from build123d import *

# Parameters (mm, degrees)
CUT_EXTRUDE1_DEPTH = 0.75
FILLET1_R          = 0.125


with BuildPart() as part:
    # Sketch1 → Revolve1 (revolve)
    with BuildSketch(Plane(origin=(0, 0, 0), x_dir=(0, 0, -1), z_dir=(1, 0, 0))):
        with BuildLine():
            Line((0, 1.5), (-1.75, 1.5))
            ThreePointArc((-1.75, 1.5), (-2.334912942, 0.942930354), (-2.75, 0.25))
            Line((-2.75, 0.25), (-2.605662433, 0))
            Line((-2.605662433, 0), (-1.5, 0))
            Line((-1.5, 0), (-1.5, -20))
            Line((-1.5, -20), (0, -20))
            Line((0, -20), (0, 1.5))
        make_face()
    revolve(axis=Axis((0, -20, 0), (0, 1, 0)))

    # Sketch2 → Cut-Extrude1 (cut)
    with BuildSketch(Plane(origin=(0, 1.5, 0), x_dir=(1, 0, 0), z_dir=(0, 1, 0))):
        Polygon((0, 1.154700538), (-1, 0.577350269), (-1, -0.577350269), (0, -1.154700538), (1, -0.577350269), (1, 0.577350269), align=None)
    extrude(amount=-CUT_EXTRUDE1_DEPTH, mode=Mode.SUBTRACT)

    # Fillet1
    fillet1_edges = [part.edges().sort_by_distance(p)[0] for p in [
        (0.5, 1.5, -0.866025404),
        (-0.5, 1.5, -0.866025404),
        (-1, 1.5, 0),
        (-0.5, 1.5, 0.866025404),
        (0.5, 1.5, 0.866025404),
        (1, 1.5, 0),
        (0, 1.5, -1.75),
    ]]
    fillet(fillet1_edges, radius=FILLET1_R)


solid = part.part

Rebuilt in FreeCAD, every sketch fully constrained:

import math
import FreeCAD as App
import Part
import Sketcher

V = App.Vector
Q = App.Units.Quantity


def edges_at(feature, points):
    """Names of the edges that pass closest to the given points."""
    edges = feature.Shape.Edges
    near = lambda p: min(range(len(edges)), key=lambda i: edges[i].distToShape(Part.Vertex(*p))[0])
    return sorted({f"Edge{near(p) + 1}" for p in points})

doc = App.newDocument("Part")
params = doc.addObject("Spreadsheet::Sheet", "Params")
for row, (alias, value) in enumerate([
    ("sketch1_radius", "3 mm"),
    ("sketch1_width", "20 mm"),
    ("sketch1_width2", "21.5 mm"),
    ("sketch1_height", "1.5 mm"),
    ("sketch1_height2", "1.75 mm"),
    ("revolution_angle", "360 deg"),
    ("pocket1_length", "0.75 mm"),
    ("fillet_radius", "0.125 mm"),
], start=1):
    params.set(f"A{row}", alias)
    params.set(f"B{row}", "=" + value)
    params.setAlias(f"B{row}", alias)

body = doc.addObject("PartDesign::Body", "Body")

# Sketch on YZ plane
sketch1 = body.newObject("Sketcher::SketchObject", "Sketch")
sketch1.AttachmentSupport = (doc.getObject("YZ_Plane"), [""])
sketch1.MapMode = "FlatFace"
sketch1.addGeometry([
    Part.LineSegment(V(1.5, 0, 0), V(1.5, 1.75, 0)),  # 0
    Part.ArcOfCircle(Part.Circle(V(-0.93, -0.01, 0), V(0, 0, 1), 3), math.radians(36), math.radians(67)),  # 1
    Part.LineSegment(V(0.25, 2.75, 0), V(0, 2.61, 0)),  # 2
    Part.LineSegment(V(0, 2.61, 0), V(0, 1.5, 0)),  # 3
    Part.LineSegment(V(0, 1.5, 0), V(-20, 1.5, 0)),  # 4
    Part.LineSegment(V(-20, 1.5, 0), V(-20, 0, 0)),  # 5
    Part.LineSegment(V(-20, 0, 0), V(1.5, 0, 0)),  # 6
], False)
sketch1.addConstraint([
    Sketcher.Constraint("Coincident", 0, 2, 1, 1),
    Sketcher.Constraint("Coincident", 1, 2, 2, 1),
    Sketcher.Constraint("Coincident", 2, 2, 3, 1),
    Sketcher.Constraint("Coincident", 3, 2, 4, 1),
    Sketcher.Constraint("Coincident", 4, 2, 5, 1),
    Sketcher.Constraint("Coincident", 5, 2, 6, 1),
    Sketcher.Constraint("Coincident", 6, 2, 0, 1),
    Sketcher.Constraint("Vertical", 0),
    Sketcher.Constraint("Vertical", 3),
    Sketcher.Constraint("Horizontal", 4),
    Sketcher.Constraint("Vertical", 5),
    Sketcher.Constraint("Horizontal", 6),
    Sketcher.Constraint("PointOnObject", 2, 2, -2),
    Sketcher.Constraint("PointOnObject", 5, 2, -1),
    Sketcher.Constraint("Radius", 1, Q("3 mm")),
    Sketcher.Constraint("DistanceX", 4, 2, 4, 1, Q("20 mm")),
    Sketcher.Constraint("Angle", 2, Q("-150 deg")),
    Sketcher.Constraint("DistanceX", 6, 1, 6, 2, Q("21.5 mm")),
    Sketcher.Constraint("DistanceY", 5, 2, 5, 1, Q("1.5 mm")),
    Sketcher.Constraint("DistanceY", 0, 2, 1, 2, Q("1 mm")),
    Sketcher.Constraint("DistanceY", 0, 1, 0, 2, Q("1.75 mm")),
    Sketcher.Constraint("DistanceX", -1, 1, 1, 2, Q("0.25 mm")),
])
sketch1.setExpression("Constraints[14]", "Params.sketch1_radius")
sketch1.setExpression("Constraints[15]", "Params.sketch1_width")
sketch1.setExpression("Constraints[17]", "Params.sketch1_width2")
sketch1.setExpression("Constraints[18]", "Params.sketch1_height")
sketch1.setExpression("Constraints[20]", "Params.sketch1_height2")
revolution = body.newObject("PartDesign::Revolution", "Revolution")
revolution.Profile = sketch1
revolution.ReferenceAxis = (sketch1, ["H_Axis"])
revolution.setExpression("Angle", "Params.revolution_angle")

# Sketch on XZ plane
sketch2 = body.newObject("Sketcher::SketchObject", "Sketch001")
sketch2.AttachmentSupport = (doc.getObject("XZ_Plane"), [""])
sketch2.MapMode = "FlatFace"
sketch2.AttachmentOffset = App.Placement(V(0, 0, -1.5), App.Rotation())
sketch2.addGeometry([
    Part.LineSegment(V(0, -1.2, 0), V(-1, -0.6, 0)),  # 0
    Part.LineSegment(V(-1, -0.6, 0), V(-1, 0.6, 0)),  # 1
    Part.LineSegment(V(-1, 0.6, 0), V(0, 1.2, 0)),  # 2
    Part.LineSegment(V(0, 1.2, 0), V(1, 0.6, 0)),  # 3
    Part.LineSegment(V(1, 0.6, 0), V(1, -0.6, 0)),  # 4
    Part.LineSegment(V(1, -0.6, 0), V(0, -1.2, 0)),  # 5
], False)
sketch2.addConstraint([
    Sketcher.Constraint("Coincident", 0, 2, 1, 1),
    Sketcher.Constraint("Coincident", 1, 2, 2, 1),
    Sketcher.Constraint("Coincident", 2, 2, 3, 1),
    Sketcher.Constraint("Coincident", 3, 2, 4, 1),
    Sketcher.Constraint("Coincident", 4, 2, 5, 1),
    Sketcher.Constraint("Coincident", 5, 2, 0, 1),
    Sketcher.Constraint("Vertical", 1),
    Sketcher.Constraint("Vertical", 4),
    Sketcher.Constraint("Symmetric", 0, 2, 3, 2, -1, 1),
    Sketcher.Constraint("Symmetric", 2, 2, 5, 2, -1, 1),
    Sketcher.Constraint("PointOnObject", 2, 2, -2),
    Sketcher.Constraint("Parallel", 2, 5),
    Sketcher.Constraint("Horizontal", 1, 2, 3, 2),
    Sketcher.Constraint("Angle", 0, Q("150 deg")),
    Sketcher.Constraint("DistanceX", 0, 2, -1, 1, Q("1 mm")),
    Sketcher.Constraint("DistanceY", 1, 1, 1, 2, Q("1.154701 mm")),
])
pocket1 = body.newObject("PartDesign::Pocket", "Pocket")
pocket1.Profile = sketch2
pocket1.setExpression("Length", "Params.pocket1_length")
pocket1.Reversed = True
doc.recompute()

fillet = body.newObject("PartDesign::Fillet", "Fillet")
fillet.Base = (pocket1, edges_at(pocket1, [
    (0.5, 1.5, -0.866),
    (-0.5, 1.5, -0.866),
    (-1, 1.5, 0),
    (-0.5, 1.5, 0.866),
    (0.5, 1.5, 0.866),
    (1, 1.5, 0),
    (0, 1.5, -1.75),
]))
fillet.setExpression("Radius", "Params.fillet_radius")

doc.recompute()
